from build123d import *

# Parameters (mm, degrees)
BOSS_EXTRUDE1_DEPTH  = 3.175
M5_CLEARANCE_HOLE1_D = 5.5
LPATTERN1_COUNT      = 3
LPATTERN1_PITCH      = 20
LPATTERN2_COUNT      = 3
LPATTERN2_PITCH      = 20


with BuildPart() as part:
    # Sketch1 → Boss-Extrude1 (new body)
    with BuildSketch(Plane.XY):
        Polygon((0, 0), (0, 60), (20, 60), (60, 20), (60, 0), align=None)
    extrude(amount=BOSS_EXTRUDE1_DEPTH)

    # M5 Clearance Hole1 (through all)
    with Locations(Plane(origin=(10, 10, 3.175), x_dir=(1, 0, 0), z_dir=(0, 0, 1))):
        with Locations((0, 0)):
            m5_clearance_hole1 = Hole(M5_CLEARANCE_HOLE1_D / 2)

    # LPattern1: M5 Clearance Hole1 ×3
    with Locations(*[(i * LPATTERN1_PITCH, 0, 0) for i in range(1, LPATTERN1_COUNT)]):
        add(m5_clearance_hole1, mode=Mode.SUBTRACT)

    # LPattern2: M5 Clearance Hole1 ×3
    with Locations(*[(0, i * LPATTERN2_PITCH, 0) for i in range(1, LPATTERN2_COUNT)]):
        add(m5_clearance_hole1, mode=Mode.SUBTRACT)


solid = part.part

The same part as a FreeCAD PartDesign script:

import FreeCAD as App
import Part
import Sketcher
from FreeCAD import Vector

doc = App.newDocument("Part")
body = doc.addObject("PartDesign::Body", "Body")

# Sketch on XY plane
sketch1 = body.newObject("Sketcher::SketchObject", "Sketch")
sketch1.AttachmentSupport = (doc.getObject("XY_Plane"), [""])
sketch1.MapMode = "FlatFace"
sketch1.addGeometry([
    Part.LineSegment(Vector(0, 60, 0), Vector(0, 0, 0)),  # 0
    Part.LineSegment(Vector(0, 0, 0), Vector(60, 0, 0)),  # 1
    Part.LineSegment(Vector(60, 0, 0), Vector(60, 20, 0)),  # 2
    Part.LineSegment(Vector(60, 20, 0), Vector(20, 60, 0)),  # 3
    Part.LineSegment(Vector(20, 60, 0), Vector(0, 60, 0)),  # 4
], False)
sketch1.addConstraint([
    Sketcher.Constraint("Coincident", 0, 2, 1, 1),
    Sketcher.Constraint("Coincident", 1, 2, 2, 1),
    Sketcher.Constraint("Coincident", 2, 2, 3, 1),
    Sketcher.Constraint("Coincident", 3, 2, 4, 1),
    Sketcher.Constraint("Coincident", 4, 2, 0, 1),
    Sketcher.Constraint("Vertical", 0),
    Sketcher.Constraint("Horizontal", 1),
    Sketcher.Constraint("Vertical", 2),
    Sketcher.Constraint("Horizontal", 4),
    Sketcher.Constraint("Coincident", 0, 2, -1, 1),
    Sketcher.Constraint("Equal", 1, 0),
    Sketcher.Constraint("Equal", 4, 2),
    Sketcher.Constraint("DistanceX", 1, 1, 1, 2, 60.0),
    Sketcher.Constraint("DistanceX", 4, 2, 4, 1, 20.0),
])
pad1 = body.newObject("PartDesign::Pad", "Pad")
pad1.Profile = sketch1
pad1.Length = 3.175

# Sketch on XY plane
sketch2 = body.newObject("Sketcher::SketchObject", "Sketch001")
sketch2.AttachmentSupport = (doc.getObject("XY_Plane"), [""])
sketch2.MapMode = "FlatFace"
sketch2.AttachmentOffset = App.Placement(Vector(0, 0, 3.175), App.Rotation())
sketch2.addGeometry(Part.Circle(Vector(10, 10, 0), Vector(0, 0, 1), 2.8), False)
sketch2.addConstraint([
    Sketcher.Constraint("Diameter", 0, 5.5),
    Sketcher.Constraint("DistanceX", -1, 1, 0, 3, 10.0),
    Sketcher.Constraint("DistanceY", -1, 1, 0, 3, 10.0),
])
doc.recompute()
hole = body.newObject("PartDesign::Hole", "Hole")
hole.Profile = sketch2
hole.ThreadType = "None"
hole.Diameter = 5.5
hole.DepthType = "ThroughAll"
doc.recompute()

linearpattern = body.newObject("PartDesign::LinearPattern", "LinearPattern")
linearpattern.Originals = [hole]
linearpattern.Direction = (doc.getObject("X_Axis"), [""])
linearpattern.Mode = "offset"
linearpattern.Offset = 20
linearpattern.Occurrences = 3
body.Tip = linearpattern
doc.recompute()

linearpattern2 = body.newObject("PartDesign::LinearPattern", "LinearPattern001")
linearpattern2.Originals = [hole]
linearpattern2.Direction = (doc.getObject("Y_Axis"), [""])
linearpattern2.Mode = "offset"
linearpattern2.Offset = 20
linearpattern2.Occurrences = 3
body.Tip = linearpattern2

doc.recompute()
